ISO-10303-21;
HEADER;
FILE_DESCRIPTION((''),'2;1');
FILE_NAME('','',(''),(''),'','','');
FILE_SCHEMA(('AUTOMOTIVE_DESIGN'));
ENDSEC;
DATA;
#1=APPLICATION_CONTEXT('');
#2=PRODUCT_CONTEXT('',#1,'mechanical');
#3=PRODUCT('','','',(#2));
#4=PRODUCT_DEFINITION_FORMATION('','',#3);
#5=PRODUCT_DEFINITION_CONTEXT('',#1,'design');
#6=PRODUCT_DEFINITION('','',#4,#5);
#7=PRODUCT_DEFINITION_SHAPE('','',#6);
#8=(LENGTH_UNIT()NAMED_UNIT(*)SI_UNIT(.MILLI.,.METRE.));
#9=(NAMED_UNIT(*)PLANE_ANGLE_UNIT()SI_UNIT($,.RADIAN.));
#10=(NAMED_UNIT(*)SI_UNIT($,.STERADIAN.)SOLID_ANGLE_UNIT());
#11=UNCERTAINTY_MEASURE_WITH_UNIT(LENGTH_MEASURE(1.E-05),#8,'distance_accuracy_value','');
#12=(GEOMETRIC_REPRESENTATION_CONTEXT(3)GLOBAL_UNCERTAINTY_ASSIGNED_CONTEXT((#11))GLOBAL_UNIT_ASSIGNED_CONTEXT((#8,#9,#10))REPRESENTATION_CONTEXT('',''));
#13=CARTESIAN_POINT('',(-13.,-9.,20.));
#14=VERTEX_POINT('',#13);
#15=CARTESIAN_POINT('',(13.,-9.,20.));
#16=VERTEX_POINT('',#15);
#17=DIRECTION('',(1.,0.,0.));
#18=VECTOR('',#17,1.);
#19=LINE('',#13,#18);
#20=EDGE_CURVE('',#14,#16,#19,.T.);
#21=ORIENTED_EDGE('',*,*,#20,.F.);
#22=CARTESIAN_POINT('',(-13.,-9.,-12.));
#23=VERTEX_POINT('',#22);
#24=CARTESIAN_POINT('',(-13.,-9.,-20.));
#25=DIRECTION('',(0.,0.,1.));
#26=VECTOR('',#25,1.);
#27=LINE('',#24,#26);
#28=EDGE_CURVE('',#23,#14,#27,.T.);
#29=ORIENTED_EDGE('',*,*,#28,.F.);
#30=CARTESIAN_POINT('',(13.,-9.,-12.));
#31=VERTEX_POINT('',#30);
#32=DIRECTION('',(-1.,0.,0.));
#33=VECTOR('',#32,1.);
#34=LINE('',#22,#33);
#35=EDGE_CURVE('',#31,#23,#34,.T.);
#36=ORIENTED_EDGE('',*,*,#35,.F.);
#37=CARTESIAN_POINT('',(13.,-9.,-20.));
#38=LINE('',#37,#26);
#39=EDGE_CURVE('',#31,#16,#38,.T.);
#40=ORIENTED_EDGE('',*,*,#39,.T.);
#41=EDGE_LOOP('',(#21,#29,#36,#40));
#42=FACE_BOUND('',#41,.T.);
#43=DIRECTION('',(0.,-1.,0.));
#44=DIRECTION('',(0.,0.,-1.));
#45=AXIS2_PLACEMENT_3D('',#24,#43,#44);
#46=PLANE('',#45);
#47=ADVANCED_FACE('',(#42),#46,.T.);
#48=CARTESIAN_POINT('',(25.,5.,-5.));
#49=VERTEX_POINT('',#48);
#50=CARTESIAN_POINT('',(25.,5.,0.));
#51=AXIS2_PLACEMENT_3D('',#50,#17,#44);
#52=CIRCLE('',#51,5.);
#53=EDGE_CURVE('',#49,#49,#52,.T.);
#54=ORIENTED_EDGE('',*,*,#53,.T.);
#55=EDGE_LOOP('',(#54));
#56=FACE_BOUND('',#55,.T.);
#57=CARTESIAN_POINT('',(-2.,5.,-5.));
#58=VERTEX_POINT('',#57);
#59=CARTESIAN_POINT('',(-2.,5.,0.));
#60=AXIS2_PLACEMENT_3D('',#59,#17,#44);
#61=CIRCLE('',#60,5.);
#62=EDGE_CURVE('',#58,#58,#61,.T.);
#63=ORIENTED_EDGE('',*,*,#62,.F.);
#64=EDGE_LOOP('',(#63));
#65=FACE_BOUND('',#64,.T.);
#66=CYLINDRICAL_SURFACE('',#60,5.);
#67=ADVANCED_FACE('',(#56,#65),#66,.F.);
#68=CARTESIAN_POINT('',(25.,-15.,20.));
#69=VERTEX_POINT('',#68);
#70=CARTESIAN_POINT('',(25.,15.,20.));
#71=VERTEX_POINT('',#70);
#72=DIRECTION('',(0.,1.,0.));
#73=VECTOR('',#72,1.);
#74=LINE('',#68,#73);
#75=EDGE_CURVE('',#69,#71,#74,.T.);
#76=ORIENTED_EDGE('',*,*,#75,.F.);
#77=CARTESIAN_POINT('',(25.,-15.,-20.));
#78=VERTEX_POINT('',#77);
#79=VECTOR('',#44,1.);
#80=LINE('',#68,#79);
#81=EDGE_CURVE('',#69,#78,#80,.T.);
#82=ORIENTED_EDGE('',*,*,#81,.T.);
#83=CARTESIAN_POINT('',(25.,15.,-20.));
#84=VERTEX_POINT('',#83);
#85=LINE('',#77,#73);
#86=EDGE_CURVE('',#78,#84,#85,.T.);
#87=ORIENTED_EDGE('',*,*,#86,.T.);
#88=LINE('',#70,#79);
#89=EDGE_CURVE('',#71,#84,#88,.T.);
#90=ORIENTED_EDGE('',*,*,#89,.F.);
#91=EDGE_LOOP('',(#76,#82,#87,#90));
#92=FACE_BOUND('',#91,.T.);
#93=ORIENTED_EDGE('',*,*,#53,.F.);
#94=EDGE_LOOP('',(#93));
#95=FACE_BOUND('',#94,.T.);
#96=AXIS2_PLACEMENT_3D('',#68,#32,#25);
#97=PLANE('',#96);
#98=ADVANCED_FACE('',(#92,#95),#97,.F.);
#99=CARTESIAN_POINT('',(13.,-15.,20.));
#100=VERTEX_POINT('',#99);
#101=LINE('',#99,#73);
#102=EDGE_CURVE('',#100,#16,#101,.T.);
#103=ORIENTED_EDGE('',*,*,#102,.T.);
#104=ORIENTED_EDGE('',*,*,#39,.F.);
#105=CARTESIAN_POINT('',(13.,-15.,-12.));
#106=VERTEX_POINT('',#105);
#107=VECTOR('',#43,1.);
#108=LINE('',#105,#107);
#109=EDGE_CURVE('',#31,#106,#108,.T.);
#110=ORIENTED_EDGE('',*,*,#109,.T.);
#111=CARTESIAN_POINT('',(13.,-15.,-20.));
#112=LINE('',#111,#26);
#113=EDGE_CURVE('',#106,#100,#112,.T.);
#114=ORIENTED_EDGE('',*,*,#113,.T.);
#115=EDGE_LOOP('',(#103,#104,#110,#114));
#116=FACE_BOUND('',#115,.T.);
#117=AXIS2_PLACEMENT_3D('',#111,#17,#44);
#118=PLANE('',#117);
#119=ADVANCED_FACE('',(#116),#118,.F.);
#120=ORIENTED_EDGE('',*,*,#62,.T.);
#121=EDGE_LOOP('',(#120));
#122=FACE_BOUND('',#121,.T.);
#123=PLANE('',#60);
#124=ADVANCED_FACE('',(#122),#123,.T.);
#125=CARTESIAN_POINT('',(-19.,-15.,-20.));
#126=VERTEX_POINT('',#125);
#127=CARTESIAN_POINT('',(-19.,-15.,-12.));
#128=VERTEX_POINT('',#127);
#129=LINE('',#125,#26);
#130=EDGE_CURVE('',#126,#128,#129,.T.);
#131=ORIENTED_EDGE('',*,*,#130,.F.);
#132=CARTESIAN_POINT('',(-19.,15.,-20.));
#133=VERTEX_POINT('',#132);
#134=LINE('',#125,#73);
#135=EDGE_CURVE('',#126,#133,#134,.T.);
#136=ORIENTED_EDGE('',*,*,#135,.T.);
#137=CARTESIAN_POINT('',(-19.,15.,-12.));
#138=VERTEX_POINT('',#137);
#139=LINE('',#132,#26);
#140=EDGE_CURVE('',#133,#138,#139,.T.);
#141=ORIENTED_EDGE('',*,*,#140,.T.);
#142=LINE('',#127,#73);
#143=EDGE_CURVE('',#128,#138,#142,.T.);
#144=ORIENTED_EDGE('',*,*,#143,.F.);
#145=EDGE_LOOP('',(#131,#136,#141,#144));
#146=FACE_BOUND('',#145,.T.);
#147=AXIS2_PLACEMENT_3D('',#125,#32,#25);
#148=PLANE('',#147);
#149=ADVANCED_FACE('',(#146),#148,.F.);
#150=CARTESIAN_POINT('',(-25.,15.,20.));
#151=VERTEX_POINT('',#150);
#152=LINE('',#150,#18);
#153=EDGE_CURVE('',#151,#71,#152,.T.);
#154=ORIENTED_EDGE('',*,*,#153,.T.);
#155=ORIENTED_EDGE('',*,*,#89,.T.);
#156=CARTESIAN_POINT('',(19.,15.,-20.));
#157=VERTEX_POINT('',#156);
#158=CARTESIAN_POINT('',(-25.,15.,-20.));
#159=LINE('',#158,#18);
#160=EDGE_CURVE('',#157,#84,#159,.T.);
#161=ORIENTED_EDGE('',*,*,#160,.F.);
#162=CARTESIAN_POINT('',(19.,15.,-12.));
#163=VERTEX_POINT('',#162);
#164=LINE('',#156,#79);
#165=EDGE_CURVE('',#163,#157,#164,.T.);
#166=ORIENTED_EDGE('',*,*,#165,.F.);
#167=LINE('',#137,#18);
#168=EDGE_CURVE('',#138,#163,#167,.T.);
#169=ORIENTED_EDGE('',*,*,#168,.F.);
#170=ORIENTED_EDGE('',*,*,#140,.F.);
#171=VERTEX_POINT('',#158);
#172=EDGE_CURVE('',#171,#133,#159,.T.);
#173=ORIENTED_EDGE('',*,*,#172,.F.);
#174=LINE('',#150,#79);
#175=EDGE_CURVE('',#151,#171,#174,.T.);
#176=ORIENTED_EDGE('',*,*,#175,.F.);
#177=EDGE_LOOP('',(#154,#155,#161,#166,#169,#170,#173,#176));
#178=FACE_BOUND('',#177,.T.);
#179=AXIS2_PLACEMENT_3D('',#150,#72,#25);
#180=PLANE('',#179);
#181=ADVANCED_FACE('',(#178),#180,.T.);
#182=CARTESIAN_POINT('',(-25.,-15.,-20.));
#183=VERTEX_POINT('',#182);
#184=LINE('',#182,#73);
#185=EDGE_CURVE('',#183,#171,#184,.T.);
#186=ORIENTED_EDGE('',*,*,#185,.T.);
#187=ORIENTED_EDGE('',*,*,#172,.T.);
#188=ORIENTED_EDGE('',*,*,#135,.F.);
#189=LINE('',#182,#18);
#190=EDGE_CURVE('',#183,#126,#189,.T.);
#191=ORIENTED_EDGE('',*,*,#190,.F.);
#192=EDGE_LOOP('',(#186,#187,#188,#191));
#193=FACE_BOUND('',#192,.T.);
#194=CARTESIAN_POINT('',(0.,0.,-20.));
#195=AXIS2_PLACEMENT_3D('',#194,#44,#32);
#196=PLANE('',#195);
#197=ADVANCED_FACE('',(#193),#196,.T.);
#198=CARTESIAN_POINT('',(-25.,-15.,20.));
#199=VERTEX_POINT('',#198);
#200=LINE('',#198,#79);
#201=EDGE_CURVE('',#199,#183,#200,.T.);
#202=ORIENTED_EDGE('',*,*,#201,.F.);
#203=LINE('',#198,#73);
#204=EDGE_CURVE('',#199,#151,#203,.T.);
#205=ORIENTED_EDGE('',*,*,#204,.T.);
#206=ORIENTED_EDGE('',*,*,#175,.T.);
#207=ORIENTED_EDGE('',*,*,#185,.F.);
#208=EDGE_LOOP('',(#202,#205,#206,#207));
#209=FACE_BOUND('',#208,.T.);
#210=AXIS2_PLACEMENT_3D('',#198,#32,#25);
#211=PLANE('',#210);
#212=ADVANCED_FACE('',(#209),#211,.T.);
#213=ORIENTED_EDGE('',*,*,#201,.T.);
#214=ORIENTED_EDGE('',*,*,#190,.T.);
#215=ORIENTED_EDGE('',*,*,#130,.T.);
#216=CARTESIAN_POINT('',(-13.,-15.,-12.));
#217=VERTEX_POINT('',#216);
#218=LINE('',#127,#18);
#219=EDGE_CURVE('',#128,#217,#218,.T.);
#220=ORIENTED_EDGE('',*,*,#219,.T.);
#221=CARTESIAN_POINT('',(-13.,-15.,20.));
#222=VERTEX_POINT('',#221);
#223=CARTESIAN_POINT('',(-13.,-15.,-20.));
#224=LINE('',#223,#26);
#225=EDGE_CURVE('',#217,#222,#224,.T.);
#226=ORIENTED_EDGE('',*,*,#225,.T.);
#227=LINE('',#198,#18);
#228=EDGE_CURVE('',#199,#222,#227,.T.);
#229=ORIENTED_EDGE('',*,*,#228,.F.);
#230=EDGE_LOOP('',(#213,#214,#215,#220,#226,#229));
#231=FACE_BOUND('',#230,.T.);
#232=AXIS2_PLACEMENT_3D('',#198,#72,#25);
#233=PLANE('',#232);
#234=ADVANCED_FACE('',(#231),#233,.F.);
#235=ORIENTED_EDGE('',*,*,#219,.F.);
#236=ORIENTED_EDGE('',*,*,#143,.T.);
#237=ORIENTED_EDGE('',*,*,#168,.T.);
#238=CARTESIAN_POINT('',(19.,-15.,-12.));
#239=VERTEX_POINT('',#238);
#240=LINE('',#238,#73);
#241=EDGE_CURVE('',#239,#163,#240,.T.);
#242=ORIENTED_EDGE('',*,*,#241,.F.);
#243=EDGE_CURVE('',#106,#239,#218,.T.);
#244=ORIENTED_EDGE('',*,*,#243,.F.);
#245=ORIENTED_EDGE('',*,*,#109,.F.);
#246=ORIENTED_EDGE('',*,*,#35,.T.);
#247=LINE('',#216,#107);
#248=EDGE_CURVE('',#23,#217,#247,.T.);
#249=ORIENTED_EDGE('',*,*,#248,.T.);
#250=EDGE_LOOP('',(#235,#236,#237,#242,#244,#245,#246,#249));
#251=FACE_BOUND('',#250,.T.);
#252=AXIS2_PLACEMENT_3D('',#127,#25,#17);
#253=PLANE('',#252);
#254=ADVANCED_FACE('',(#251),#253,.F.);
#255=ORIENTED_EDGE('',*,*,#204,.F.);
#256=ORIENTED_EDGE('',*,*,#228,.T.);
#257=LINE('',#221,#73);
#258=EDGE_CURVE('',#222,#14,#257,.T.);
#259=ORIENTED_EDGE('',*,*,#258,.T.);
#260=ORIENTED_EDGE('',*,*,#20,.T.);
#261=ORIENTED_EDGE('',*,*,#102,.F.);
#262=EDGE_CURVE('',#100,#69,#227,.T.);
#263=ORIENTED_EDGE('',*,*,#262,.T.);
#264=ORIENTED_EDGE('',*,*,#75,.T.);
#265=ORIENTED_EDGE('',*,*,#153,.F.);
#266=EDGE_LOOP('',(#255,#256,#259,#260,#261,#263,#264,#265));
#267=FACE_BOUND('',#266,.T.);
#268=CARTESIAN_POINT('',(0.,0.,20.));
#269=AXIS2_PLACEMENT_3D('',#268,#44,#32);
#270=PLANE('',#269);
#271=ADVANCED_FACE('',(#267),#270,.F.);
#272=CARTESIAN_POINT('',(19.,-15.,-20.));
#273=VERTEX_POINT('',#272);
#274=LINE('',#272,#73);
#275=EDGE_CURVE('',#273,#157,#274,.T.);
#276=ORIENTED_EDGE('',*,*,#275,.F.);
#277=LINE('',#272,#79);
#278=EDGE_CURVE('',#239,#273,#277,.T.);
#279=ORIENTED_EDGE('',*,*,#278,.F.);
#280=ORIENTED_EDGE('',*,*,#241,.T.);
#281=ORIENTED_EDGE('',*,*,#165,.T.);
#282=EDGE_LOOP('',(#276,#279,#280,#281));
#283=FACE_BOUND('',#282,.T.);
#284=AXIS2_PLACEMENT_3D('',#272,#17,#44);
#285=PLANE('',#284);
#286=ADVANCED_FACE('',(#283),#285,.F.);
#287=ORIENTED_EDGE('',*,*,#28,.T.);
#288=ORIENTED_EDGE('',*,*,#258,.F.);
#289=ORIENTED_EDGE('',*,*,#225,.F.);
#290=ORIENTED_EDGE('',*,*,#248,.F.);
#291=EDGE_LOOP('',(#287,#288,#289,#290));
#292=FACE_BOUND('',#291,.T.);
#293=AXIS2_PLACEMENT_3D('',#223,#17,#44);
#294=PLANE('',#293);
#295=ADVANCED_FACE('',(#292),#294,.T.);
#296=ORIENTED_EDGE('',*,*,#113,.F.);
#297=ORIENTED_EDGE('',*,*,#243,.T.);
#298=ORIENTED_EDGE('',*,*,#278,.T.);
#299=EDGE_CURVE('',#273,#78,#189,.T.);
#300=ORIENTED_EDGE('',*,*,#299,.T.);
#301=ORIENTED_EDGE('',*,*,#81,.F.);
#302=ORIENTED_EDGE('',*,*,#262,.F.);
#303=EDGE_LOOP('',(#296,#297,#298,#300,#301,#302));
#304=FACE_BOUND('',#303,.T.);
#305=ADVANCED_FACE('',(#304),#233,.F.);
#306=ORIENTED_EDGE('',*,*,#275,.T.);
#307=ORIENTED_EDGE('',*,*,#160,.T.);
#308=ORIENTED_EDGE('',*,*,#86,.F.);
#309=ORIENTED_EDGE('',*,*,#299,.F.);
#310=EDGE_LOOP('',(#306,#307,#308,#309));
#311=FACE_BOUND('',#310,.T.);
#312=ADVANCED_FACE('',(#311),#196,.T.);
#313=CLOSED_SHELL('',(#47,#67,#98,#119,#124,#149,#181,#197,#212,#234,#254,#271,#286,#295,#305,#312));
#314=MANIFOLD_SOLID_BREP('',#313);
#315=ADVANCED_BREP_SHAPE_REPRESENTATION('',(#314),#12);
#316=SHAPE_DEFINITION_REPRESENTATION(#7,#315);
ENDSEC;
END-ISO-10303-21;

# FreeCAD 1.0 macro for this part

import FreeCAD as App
import Part
import Sketcher
from FreeCAD import Vector


def add_polygon(sketch, points):
    """Adds a closed chain of lines whose ends are joined by coincident constraints."""
    first, n = sketch.GeometryCount, len(points)
    for a, b in zip(points, points[1:] + points[:1]):
        sketch.addGeometry(Part.LineSegment(App.Vector(*a, 0), App.Vector(*b, 0)), False)
    for i in range(n):
        sketch.addConstraint(Sketcher.Constraint("Coincident", first + i, 2, first + (i + 1) % n, 1))

doc = App.newDocument("Part")
params = doc.addObject("Spreadsheet::Sheet", "Params")
for row, (alias, value) in enumerate([
    ("sketch1_width", "50 mm"),
    ("sketch1_height", "30 mm"),
    ("pad1_length", "40 mm"),
    ("sketch2_width", "26 mm"),
    ("sketch2_height", "6 mm"),
    ("sketch3_width", "38 mm"),
    ("sketch3_height", "8 mm"),
    ("sketch4_diameter", "10 mm"),
    ("pocket3_length", "27 mm"),
], start=1):
    params.set(f"A{row}", alias)
    params.set(f"B{row}", "=" + value)
    params.setAlias(f"B{row}", alias)

body = doc.addObject("PartDesign::Body", "Body")

# Sketch on XY plane
sketch1 = doc.addObject("Sketcher::SketchObject", "Sketch")
body.addObject(sketch1)
sketch1.AttachmentSupport = (doc.XY_Plane, [""])
sketch1.MapMode = "FlatFace"
add_polygon(sketch1, [(-25, 15), (-25, -15), (25, -15), (25, 15)])  # lines 0-3
sketch1.addConstraint(Sketcher.Constraint("Vertical", 0))
sketch1.addConstraint(Sketcher.Constraint("Horizontal", 1))
sketch1.addConstraint(Sketcher.Constraint("Vertical", 2))
sketch1.addConstraint(Sketcher.Constraint("Horizontal", 3))
sketch1.addConstraint(Sketcher.Constraint("Symmetric", 0, 2, 2, 2, -1, 1))
sketch1.addConstraint(Sketcher.Constraint("DistanceX", 1, 1, 1, 2, 50.0))
sketch1.addConstraint(Sketcher.Constraint("DistanceY", 0, 2, 0, 1, 30.0))
sketch1.setExpression("Constraints[9]", "Params.sketch1_width")
sketch1.setExpression("Constraints[10]", "Params.sketch1_height")
pad1 = doc.addObject("PartDesign::Pad", "Pad")
body.addObject(pad1)
pad1.Profile = sketch1
pad1.setExpression("Length", "Params.pad1_length")
pad1.Midplane = True

# Sketch on XY plane
sketch2 = doc.addObject("Sketcher::SketchObject", "Sketch001")
body.addObject(sketch2)
sketch2.AttachmentSupport = (doc.XY_Plane, [""])
sketch2.MapMode = "FlatFace"
add_polygon(sketch2, [(-13, -9), (-13, -15), (13, -15), (13, -9)])  # lines 0-3
sketch2.addConstraint(Sketcher.Constraint("Vertical", 0))
sketch2.addConstraint(Sketcher.Constraint("Horizontal", 1))
sketch2.addConstraint(Sketcher.Constraint("Vertical", 2))
sketch2.addConstraint(Sketcher.Constraint("Horizontal", 3))
sketch2.addConstraint(Sketcher.Constraint("DistanceX", 1, 1, 1, 2, 26.0))
sketch2.addConstraint(Sketcher.Constraint("DistanceY", 0, 2, 0, 1, 6.0))
sketch2.addConstraint(Sketcher.Constraint("DistanceX", 0, 2, -1, 1, 13.0))
sketch2.addConstraint(Sketcher.Constraint("DistanceY", 0, 2, -1, 1, 15.0))
sketch2.setExpression("Constraints[8]", "Params.sketch2_width")
sketch2.setExpression("Constraints[9]", "Params.sketch2_height")
pocket1 = doc.addObject("PartDesign::Pocket", "Pocket")
body.addObject(pocket1)
pocket1.Profile = sketch2
pocket1.Type = "ThroughAll"
pocket1.Midplane = True

# Sketch on XZ plane
sketch3 = doc.addObject("Sketcher::SketchObject", "Sketch002")
body.addObject(sketch3)
sketch3.AttachmentSupport = (doc.XZ_Plane, [""])
sketch3.MapMode = "FlatFace"
sketch3.AttachmentOffset = App.Placement(Vector(0, 0, -15), App.Rotation())
add_polygon(sketch3, [(-19, -20), (-19, -12), (19, -12), (19, -20)])  # lines 0-3
sketch3.addConstraint(Sketcher.Constraint("Vertical", 0))
sketch3.addConstraint(Sketcher.Constraint("Horizontal", 1))
sketch3.addConstraint(Sketcher.Constraint("Vertical", 2))
sketch3.addConstraint(Sketcher.Constraint("Horizontal", 3))
sketch3.addConstraint(Sketcher.Constraint("DistanceX", 1, 1, 1, 2, 38.0))
sketch3.addConstraint(Sketcher.Constraint("DistanceY", 0, 1, 0, 2, 8.0))
sketch3.addConstraint(Sketcher.Constraint("DistanceX", 0, 2, -1, 1, 19.0))
sketch3.addConstraint(Sketcher.Constraint("DistanceY", 0, 2, -1, 1, 12.0))
sketch3.setExpression("Constraints[8]", "Params.sketch3_width")
sketch3.setExpression("Constraints[9]", "Params.sketch3_height")
pocket2 = doc.addObject("PartDesign::Pocket", "Pocket001")
body.addObject(pocket2)
pocket2.Profile = sketch3
pocket2.Type = "ThroughAll"
pocket2.Reversed = True

# Sketch on YZ plane
sketch4 = doc.addObject("Sketcher::SketchObject", "Sketch003")
body.addObject(sketch4)
sketch4.AttachmentSupport = (doc.YZ_Plane, [""])
sketch4.MapMode = "FlatFace"
sketch4.AttachmentOffset = App.Placement(Vector(0, 0, 25), App.Rotation())
sketch4.addGeometry(Part.Circle(Vector(5, 0, 0), Vector(0, 0, 1), 5), False)
sketch4.addConstraint(Sketcher.Constraint("PointOnObject", 0, 3, -1))
sketch4.addConstraint(Sketcher.Constraint("Diameter", 0, 10.0))
sketch4.addConstraint(Sketcher.Constraint("DistanceX", -1, 1, 0, 3, 5.0))
sketch4.setExpression("Constraints[1]", "Params.sketch4_diameter")
pocket3 = doc.addObject("PartDesign::Pocket", "Pocket002")
body.addObject(pocket3)
pocket3.Profile = sketch4
pocket3.setExpression("Length", "Params.pocket3_length")

doc.recompute()
